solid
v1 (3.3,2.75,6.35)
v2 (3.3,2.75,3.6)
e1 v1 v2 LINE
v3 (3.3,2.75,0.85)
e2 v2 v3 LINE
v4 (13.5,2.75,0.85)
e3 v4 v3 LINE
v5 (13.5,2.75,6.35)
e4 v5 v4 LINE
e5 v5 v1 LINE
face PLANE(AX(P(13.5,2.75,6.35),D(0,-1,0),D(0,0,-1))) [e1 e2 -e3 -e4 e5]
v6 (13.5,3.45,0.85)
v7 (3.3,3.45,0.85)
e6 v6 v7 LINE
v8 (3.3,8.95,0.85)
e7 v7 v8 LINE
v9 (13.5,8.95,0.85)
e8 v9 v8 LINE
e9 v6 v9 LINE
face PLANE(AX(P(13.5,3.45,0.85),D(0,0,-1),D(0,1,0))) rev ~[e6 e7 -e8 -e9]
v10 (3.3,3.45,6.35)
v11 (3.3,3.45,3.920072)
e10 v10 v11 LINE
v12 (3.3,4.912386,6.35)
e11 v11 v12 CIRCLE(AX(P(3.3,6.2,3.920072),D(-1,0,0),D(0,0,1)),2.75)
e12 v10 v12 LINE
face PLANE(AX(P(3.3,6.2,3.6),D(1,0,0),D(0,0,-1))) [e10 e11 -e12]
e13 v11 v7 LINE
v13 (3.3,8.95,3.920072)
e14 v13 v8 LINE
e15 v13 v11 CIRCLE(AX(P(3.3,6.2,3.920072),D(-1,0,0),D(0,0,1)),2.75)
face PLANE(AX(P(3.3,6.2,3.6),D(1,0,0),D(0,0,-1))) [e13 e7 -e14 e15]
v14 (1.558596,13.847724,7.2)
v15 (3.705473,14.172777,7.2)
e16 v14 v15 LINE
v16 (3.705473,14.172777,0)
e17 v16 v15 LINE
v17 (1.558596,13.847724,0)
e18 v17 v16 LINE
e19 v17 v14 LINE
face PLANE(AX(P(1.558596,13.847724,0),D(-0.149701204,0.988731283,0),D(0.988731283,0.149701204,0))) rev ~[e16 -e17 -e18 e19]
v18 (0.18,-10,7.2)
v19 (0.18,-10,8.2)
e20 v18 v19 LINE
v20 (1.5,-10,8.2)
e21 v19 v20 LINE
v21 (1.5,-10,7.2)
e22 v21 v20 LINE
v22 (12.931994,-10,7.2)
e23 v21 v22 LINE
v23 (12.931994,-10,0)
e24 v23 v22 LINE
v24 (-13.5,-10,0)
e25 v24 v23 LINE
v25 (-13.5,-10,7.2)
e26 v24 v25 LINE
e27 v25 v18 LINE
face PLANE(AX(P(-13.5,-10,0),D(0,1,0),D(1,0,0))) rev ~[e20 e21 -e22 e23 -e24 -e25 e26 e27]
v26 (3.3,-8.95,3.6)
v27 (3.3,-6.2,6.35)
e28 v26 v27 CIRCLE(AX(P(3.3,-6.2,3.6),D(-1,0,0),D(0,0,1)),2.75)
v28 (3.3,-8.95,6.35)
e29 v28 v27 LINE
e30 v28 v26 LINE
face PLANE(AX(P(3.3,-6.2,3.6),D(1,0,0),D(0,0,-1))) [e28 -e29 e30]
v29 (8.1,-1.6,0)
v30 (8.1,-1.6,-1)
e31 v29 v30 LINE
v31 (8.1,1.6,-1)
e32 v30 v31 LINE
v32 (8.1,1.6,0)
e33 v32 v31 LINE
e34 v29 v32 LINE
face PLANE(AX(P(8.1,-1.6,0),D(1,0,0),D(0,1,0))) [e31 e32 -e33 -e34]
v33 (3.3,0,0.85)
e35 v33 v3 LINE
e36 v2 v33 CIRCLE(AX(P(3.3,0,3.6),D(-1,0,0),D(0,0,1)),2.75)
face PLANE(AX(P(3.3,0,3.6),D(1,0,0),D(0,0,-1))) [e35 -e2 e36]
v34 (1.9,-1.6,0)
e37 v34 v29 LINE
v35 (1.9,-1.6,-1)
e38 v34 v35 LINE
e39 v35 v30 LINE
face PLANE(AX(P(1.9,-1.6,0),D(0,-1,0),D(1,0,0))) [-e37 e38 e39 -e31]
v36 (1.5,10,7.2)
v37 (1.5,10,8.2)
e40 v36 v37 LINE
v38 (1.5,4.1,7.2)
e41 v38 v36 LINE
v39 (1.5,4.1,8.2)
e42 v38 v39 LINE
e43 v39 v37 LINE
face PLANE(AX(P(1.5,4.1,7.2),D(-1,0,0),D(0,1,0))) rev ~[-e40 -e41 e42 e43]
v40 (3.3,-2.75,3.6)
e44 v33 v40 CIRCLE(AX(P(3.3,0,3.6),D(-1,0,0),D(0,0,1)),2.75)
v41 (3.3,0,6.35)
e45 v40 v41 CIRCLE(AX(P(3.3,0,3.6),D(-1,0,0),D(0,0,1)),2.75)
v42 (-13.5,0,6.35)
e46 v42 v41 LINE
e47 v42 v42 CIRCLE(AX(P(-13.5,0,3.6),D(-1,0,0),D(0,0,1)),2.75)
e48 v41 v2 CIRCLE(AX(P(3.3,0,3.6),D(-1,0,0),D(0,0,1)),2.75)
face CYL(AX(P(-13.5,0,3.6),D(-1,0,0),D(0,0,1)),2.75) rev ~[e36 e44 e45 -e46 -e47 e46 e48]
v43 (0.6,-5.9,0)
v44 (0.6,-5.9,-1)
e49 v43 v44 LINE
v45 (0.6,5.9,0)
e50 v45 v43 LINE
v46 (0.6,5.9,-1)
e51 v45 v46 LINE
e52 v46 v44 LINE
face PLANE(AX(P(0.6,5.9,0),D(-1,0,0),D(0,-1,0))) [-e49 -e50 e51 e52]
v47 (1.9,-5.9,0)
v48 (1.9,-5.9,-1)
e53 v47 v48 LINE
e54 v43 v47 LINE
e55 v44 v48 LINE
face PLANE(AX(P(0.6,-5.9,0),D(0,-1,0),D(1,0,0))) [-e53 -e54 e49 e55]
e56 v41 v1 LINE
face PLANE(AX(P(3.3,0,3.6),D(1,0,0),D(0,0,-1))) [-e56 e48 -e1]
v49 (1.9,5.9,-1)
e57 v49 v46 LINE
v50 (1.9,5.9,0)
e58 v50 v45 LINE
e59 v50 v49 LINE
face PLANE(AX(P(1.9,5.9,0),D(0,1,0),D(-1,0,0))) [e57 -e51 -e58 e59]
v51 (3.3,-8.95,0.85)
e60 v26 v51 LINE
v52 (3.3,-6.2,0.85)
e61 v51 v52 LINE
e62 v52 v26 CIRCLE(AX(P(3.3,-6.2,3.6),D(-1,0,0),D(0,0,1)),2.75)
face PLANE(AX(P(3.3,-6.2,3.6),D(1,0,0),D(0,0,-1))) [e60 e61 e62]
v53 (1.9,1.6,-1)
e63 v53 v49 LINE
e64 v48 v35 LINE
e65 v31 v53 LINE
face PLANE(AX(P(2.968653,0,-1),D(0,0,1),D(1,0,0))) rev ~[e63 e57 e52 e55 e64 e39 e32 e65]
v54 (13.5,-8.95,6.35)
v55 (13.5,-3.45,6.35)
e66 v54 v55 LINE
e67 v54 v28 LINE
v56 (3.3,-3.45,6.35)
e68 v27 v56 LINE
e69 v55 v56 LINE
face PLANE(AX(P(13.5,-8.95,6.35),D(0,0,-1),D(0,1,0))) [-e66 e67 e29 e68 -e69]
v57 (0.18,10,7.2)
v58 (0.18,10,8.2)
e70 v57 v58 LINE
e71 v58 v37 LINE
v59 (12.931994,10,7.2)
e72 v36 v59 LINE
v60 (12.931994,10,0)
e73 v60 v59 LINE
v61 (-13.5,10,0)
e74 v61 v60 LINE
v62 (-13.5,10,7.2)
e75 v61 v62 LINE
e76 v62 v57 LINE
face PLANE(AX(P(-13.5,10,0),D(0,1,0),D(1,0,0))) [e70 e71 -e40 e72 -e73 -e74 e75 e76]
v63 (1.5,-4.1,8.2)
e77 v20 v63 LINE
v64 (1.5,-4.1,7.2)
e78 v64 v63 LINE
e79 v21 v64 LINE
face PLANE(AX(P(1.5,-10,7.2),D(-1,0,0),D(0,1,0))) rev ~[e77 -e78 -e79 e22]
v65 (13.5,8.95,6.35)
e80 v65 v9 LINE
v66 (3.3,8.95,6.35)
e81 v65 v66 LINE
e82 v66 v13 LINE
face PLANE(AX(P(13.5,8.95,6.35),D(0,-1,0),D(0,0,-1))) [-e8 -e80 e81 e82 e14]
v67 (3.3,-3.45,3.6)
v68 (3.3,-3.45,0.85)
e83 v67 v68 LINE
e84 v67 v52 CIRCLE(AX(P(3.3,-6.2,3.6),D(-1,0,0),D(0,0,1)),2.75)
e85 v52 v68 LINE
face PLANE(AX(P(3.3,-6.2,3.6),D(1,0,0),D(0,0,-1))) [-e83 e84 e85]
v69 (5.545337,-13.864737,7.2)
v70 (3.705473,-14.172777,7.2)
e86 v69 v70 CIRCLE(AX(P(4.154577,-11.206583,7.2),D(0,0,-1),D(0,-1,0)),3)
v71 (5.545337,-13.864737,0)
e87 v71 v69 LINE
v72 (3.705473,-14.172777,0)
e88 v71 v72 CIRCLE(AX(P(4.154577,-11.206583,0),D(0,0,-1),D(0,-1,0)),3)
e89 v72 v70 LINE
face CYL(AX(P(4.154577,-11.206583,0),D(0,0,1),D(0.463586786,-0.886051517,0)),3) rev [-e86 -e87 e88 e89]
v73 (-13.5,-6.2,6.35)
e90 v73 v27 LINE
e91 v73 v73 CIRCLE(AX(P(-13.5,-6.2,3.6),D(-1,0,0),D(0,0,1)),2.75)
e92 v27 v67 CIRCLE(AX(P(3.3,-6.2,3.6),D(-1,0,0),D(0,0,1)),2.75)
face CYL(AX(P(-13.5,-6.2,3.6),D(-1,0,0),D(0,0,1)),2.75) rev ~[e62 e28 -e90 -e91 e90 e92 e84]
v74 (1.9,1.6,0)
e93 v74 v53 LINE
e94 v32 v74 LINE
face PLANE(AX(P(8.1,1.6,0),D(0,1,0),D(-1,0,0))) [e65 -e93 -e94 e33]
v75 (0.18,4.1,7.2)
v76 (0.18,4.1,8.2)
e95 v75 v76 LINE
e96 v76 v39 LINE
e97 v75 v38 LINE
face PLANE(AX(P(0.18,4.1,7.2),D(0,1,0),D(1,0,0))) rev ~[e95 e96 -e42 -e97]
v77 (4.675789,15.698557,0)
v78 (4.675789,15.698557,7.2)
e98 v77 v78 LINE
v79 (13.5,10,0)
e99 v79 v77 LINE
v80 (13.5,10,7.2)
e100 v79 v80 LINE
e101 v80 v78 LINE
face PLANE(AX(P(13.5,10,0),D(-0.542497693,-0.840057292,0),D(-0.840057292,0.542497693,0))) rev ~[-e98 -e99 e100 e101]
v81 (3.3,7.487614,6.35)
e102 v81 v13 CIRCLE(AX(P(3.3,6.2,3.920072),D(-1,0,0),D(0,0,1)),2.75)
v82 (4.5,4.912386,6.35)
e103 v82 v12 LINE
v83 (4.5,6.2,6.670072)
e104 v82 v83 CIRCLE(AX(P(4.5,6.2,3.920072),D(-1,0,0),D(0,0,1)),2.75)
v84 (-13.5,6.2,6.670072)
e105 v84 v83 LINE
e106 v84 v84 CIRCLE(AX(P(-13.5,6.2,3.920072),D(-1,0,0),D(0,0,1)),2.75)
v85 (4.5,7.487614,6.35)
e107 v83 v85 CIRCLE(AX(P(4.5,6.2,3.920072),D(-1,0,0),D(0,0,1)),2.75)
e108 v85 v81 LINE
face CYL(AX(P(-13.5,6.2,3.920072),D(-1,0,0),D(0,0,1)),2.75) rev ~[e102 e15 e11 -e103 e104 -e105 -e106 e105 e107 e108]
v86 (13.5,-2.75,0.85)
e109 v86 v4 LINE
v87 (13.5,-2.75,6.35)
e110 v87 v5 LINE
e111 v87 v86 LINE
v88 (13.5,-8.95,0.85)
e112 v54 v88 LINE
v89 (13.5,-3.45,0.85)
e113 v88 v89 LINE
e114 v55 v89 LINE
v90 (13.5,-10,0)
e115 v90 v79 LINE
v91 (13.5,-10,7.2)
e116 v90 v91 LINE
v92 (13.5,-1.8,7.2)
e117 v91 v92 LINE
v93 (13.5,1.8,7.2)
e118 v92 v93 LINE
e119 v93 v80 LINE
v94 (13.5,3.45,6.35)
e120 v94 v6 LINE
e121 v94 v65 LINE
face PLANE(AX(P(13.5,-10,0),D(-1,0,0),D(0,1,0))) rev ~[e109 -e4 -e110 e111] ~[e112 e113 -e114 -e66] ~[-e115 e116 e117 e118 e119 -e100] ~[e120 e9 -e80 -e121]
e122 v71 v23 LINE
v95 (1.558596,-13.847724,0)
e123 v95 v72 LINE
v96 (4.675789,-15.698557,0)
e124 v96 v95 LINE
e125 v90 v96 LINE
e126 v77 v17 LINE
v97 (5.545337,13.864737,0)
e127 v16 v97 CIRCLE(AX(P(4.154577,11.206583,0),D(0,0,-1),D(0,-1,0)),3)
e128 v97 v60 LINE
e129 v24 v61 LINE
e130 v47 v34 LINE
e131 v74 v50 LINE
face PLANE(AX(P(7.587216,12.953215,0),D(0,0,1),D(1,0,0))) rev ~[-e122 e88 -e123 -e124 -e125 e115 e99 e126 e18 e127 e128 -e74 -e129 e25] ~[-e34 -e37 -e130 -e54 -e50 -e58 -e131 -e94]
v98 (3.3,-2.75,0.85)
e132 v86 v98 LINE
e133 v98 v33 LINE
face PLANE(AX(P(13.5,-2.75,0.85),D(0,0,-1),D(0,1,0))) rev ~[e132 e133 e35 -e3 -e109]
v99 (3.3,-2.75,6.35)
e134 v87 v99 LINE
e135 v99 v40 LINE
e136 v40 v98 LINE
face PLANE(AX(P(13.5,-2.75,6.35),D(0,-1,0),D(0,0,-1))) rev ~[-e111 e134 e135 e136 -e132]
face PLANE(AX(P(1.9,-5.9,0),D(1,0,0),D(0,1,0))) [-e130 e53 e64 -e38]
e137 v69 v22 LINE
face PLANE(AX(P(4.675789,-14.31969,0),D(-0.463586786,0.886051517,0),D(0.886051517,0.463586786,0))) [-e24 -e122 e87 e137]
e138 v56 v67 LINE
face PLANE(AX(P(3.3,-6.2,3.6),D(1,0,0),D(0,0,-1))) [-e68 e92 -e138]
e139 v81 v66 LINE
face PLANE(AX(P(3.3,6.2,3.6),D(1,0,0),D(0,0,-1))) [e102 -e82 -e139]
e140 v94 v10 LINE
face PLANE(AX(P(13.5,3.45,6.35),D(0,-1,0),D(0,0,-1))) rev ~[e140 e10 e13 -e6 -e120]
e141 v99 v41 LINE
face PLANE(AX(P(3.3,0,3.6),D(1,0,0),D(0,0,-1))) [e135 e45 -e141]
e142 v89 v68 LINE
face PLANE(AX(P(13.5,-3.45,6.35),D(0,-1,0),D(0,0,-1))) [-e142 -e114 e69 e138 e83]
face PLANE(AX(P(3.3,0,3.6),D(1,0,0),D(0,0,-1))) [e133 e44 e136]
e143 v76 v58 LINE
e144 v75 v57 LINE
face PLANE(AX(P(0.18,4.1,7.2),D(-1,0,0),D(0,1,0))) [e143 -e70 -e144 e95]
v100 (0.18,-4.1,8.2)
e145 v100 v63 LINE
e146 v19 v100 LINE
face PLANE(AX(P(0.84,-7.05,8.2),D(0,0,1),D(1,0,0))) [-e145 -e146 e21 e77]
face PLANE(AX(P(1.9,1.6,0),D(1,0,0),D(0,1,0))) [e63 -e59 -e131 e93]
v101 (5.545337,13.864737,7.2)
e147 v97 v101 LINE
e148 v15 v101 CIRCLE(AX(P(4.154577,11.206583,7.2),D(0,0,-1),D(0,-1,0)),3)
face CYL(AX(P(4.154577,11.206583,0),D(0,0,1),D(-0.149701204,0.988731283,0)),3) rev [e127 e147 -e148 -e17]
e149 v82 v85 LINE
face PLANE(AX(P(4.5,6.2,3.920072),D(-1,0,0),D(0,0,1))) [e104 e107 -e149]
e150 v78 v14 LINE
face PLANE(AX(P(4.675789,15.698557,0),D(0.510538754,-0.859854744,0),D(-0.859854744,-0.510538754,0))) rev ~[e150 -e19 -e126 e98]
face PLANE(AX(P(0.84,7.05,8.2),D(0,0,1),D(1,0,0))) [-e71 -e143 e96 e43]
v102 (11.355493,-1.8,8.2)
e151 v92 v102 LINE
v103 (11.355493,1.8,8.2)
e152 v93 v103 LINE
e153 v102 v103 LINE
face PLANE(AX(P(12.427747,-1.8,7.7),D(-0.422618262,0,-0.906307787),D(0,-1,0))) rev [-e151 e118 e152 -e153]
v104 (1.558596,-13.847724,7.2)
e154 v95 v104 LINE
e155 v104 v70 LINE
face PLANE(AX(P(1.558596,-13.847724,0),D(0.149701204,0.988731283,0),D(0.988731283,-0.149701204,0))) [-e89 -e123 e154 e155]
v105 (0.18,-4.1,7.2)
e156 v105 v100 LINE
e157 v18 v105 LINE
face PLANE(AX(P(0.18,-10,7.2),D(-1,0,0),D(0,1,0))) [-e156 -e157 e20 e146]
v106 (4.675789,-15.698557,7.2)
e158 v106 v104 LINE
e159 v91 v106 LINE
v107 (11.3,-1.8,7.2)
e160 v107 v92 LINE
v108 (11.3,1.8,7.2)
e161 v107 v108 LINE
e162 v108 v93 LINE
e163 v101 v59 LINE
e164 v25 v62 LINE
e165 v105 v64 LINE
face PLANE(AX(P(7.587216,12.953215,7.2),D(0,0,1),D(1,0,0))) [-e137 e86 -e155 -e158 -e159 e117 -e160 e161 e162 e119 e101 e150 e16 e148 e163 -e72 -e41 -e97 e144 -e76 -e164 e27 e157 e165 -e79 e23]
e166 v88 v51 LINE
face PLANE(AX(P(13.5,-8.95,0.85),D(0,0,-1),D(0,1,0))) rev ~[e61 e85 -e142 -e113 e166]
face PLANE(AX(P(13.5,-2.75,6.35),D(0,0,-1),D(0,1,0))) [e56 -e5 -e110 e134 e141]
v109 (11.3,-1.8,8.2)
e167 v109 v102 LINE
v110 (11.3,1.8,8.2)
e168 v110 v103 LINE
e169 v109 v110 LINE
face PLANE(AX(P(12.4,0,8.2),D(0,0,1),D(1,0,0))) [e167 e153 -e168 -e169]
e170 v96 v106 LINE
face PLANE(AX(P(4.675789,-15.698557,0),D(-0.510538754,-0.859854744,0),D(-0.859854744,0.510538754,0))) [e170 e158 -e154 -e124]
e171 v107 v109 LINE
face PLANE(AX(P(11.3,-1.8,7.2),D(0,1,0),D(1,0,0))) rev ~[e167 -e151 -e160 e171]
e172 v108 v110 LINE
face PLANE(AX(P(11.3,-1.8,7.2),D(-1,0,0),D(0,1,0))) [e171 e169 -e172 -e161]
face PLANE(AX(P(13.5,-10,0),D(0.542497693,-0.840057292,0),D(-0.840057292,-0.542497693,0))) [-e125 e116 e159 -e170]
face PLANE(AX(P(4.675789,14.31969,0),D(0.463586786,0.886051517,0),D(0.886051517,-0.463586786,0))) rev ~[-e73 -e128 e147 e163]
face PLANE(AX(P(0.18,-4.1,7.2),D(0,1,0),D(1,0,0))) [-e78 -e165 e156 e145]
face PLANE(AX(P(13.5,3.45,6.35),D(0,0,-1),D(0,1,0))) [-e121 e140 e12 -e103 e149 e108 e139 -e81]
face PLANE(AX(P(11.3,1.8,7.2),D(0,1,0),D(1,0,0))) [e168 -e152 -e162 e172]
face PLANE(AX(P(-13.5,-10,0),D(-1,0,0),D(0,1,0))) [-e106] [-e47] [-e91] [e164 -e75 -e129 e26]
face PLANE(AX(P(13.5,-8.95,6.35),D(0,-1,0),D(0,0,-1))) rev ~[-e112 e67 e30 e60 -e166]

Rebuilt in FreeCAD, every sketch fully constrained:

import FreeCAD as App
import Part
import Sketcher


def edges_at(feature, points):
    """Names of the edges that pass closest to the given points."""
    edges = feature.Shape.Edges
    near = lambda p: min(range(len(edges)), key=lambda i: edges[i].distToShape(Part.Vertex(*p))[0])
    return sorted({f"Edge{near(p) + 1}" for p in points})


def add_polygon(sketch, points):
    """Adds a closed chain of lines whose ends are joined by coincident constraints."""
    first, n = sketch.GeometryCount, len(points)
    for a, b in zip(points, points[1:] + points[:1]):
        sketch.addGeometry(Part.LineSegment(App.Vector(*a, 0), App.Vector(*b, 0)), False)
    for i in range(n):
        sketch.addConstraint(Sketcher.Constraint("Coincident", first + i, 2, first + (i + 1) % n, 1))

doc = App.newDocument("Part")
body = doc.addObject("PartDesign::Body", "Body")

sketch1 = body.newObject("Sketcher::SketchObject", "Sketch")
sketch1.AttachmentSupport = (doc.getObject("XY_Plane"), [""])
sketch1.MapMode = "FlatFace"
add_polygon(sketch1, [(-13.5, 10), (-13.5, -10), (13.5, -10), (13.5, 10)])
sketch1.addConstraint(Sketcher.Constraint("Vertical", 0))
sketch1.addConstraint(Sketcher.Constraint("Horizontal", 1))
sketch1.addConstraint(Sketcher.Constraint("Vertical", 2))
sketch1.addConstraint(Sketcher.Constraint("Horizontal", 3))
sketch1.addConstraint(Sketcher.Constraint("Symmetric", 0, 2, 2, 2, -1, 1))
sketch1.addConstraint(Sketcher.Constraint("DistanceX", 1, 1, 1, 2, 27.0))
sketch1.addConstraint(Sketcher.Constraint("DistanceY", 0, 2, 0, 1, 20.0))
pad1 = body.newObject("PartDesign::Pad", "Pad")
pad1.Profile = sketch1
pad1.Length = 7.2

sketch2 = body.newObject("Sketcher::SketchObject", "Sketch001")
sketch2.AttachmentSupport = (doc.getObject("YZ_Plane"), [""])
sketch2.MapMode = "FlatFace"
sketch2.AttachmentOffset = App.Placement(App.Vector(0, 0, 13.5), App.Rotation())
add_polygon(sketch2, [(-3.45, 6.35), (-8.95, 6.35), (-8.95, 0.85), (-3.45, 0.85)])
add_polygon(sketch2, [(2.75, 6.35), (-2.75, 6.35), (-2.75, 0.85), (2.75, 0.85)])
add_polygon(sketch2, [(8.95, 6.35), (3.45, 6.35), (3.45, 0.85), (8.95, 0.85)])
sketch2.addConstraint(Sketcher.Constraint("Horizontal", 0))
sketch2.addConstraint(Sketcher.Constraint("Vertical", 1))
sketch2.addConstraint(Sketcher.Constraint("Horizontal", 2))
sketch2.addConstraint(Sketcher.Constraint("Vertical", 3))
sketch2.addConstraint(Sketcher.Constraint("Horizontal", 4))
sketch2.addConstraint(Sketcher.Constraint("Vertical", 5))
sketch2.addConstraint(Sketcher.Constraint("Horizontal", 6))
sketch2.addConstraint(Sketcher.Constraint("Vertical", 7))
sketch2.addConstraint(Sketcher.Constraint("Horizontal", 8))
sketch2.addConstraint(Sketcher.Constraint("Vertical", 9))
sketch2.addConstraint(Sketcher.Constraint("Horizontal", 10))
sketch2.addConstraint(Sketcher.Constraint("Vertical", 11))
sketch2.addConstraint(Sketcher.Constraint("Symmetric", 3, 2, 8, 2, -2))
sketch2.addConstraint(Sketcher.Constraint("Symmetric", 1, 2, 10, 2, -2))
sketch2.addConstraint(Sketcher.Constraint("Horizontal", 3, 2, 4, 2))
sketch2.addConstraint(Sketcher.Constraint("Horizontal", 2, 2, 5, 2))
sketch2.addConstraint(Sketcher.Constraint("Equal", 2, 4))
sketch2.addConstraint(Sketcher.Constraint("Equal", 10, 1))
sketch2.addConstraint(Sketcher.Constraint("DistanceX", 0, 2, 0, 1, 5.5))
sketch2.addConstraint(Sketcher.Constraint("DistanceX", 3, 2, 4, 2, 0.7))
sketch2.addConstraint(Sketcher.Constraint("DistanceX", 7, 2, 8, 2, 0.7))
sketch2.addConstraint(Sketcher.Constraint("DistanceY", -1, 1, 0, 2, 6.35))
pocket1 = body.newObject("PartDesign::Pocket", "Pocket")
pocket1.Profile = sketch2
pocket1.Length = 10.2

sketch3 = body.newObject("Sketcher::SketchObject", "Sketch002")
sketch3.AttachmentSupport = (doc.getObject("YZ_Plane"), [""])
sketch3.MapMode = "FlatFace"
sketch3.AttachmentOffset = App.Placement(App.Vector(0, 0, -13.5), App.Rotation())
sketch3.addGeometry(Part.Circle(App.Vector(0, 3.6, 0), App.Vector(0, 0, 1), 2.75), False)
sketch3.addGeometry(Part.Circle(App.Vector(6.2, 3.920072, 0), App.Vector(0, 0, 1), 2.75), False)
sketch3.addGeometry(Part.Circle(App.Vector(-6.2, 3.6, 0), App.Vector(0, 0, 1), 2.75), False)
sketch3.addConstraint(Sketcher.Constraint("Equal", 0, 1))
sketch3.addConstraint(Sketcher.Constraint("Equal", 1, 2))
sketch3.addConstraint(Sketcher.Constraint("PointOnObject", 0, 3, -2))
sketch3.addConstraint(Sketcher.Constraint("Horizontal", 0, 3, 2, 3))
sketch3.addConstraint(Sketcher.Constraint("Diameter", 0, 5.5))
sketch3.addConstraint(Sketcher.Constraint("DistanceY", -1, 1, 0, 3, 3.6))
sketch3.addConstraint(Sketcher.Constraint("DistanceX", -1, 1, 1, 3, 6.2))
sketch3.addConstraint(Sketcher.Constraint("DistanceX", 2, 3, -1, 1, 6.2))
sketch3.addConstraint(Sketcher.Constraint("DistanceY", -1, 1, 1, 3, 3.920072))
pocket2 = body.newObject("PartDesign::Pocket", "Pocket001")
pocket2.Profile = sketch3
pocket2.Length = 18
pocket2.Reversed = True

sketch4 = body.newObject("Sketcher::SketchObject", "Sketch003")
sketch4.AttachmentSupport = (doc.getObject("XY_Plane"), [""])
sketch4.MapMode = "FlatFace"
sketch4.AttachmentOffset = App.Placement(App.Vector(0, 0, 7.2), App.Rotation())
add_polygon(sketch4, [(0.18, 10), (0.18, 4.1), (1.5, 4.1), (1.5, 10)])
add_polygon(sketch4, [(0.18, -4.1), (0.18, -10), (1.5, -10), (1.5, -4.1)])
add_polygon(sketch4, [(11.3, 1.8), (11.3, -1.8), (13.5, -1.8), (13.5, 1.8)])
sketch4.addConstraint(Sketcher.Constraint("Vertical", 0))
sketch4.addConstraint(Sketcher.Constraint("Horizontal", 1))
sketch4.addConstraint(Sketcher.Constraint("Vertical", 2))
sketch4.addConstraint(Sketcher.Constraint("Horizontal", 3))
sketch4.addConstraint(Sketcher.Constraint("Vertical", 4))
sketch4.addConstraint(Sketcher.Constraint("Horizontal", 5))
sketch4.addConstraint(Sketcher.Constraint("Vertical", 6))
sketch4.addConstraint(Sketcher.Constraint("Horizontal", 7))
sketch4.addConstraint(Sketcher.Constraint("Vertical", 8))
sketch4.addConstraint(Sketcher.Constraint("Horizontal", 9))
sketch4.addConstraint(Sketcher.Constraint("Vertical", 10))
sketch4.addConstraint(Sketcher.Constraint("Horizontal", 11))
sketch4.addConstraint(Sketcher.Constraint("Symmetric", 3, 2, 4, 2, -1))
sketch4.addConstraint(Sketcher.Constraint("Symmetric", 1, 2, 6, 2, -1))
sketch4.addConstraint(Sketcher.Constraint("DistanceX", 9, 1, 9, 2, 2.2))
sketch4.addConstraint(Sketcher.Constraint("DistanceY", 0, 2, 0, 1, 5.9))
sketch4.addConstraint(Sketcher.Constraint("DistanceY", 8, 2, 8, 1, 3.6))
sketch4.addConstraint(Sketcher.Constraint("DistanceY", -1, 1, 2, 2, 10.0))
sketch4.addConstraint(Sketcher.Constraint("DistanceX", 6, 2, 9, 2, 12.0))
sketch4.addConstraint(Sketcher.Constraint("DistanceX", 1, 1, 1, 2, 1.32))
sketch4.addConstraint(Sketcher.Constraint("DistanceX", -1, 1, 1, 2, 1.5))
sketch4.addConstraint(Sketcher.Constraint("DistanceY", 8, 2, -1, 1, 1.8))
pad2 = body.newObject("PartDesign::Pad", "Pad001")
pad2.Profile = sketch4
pad2.Length = 1
doc.recompute()

chamfer = body.newObject("PartDesign::Chamfer", "Chamfer")
chamfer.Base = (pad2, edges_at(pad2, [(13.5, 0, 8.2)]))
chamfer.ChamferType = "Two distances"
chamfer.Size = 1
chamfer.Size2 = 2.144507
chamfer.FlipDirection = True

sketch5 = body.newObject("Sketcher::SketchObject", "Sketch004")
sketch5.AttachmentSupport = (doc.getObject("XY_Plane"), [""])
sketch5.MapMode = "FlatFace"
add_polygon(sketch5, [(8.1, 1.6), (8.1, -1.6), (1.9, -1.6), (1.9, -5.9), (0.6, -5.9), (0.6, 5.9), (1.9, 5.9), (1.9, 1.6)])
sketch5.addConstraint(Sketcher.Constraint("Vertical", 0))
sketch5.addConstraint(Sketcher.Constraint("Horizontal", 1))
sketch5.addConstraint(Sketcher.Constraint("Vertical", 2))
sketch5.addConstraint(Sketcher.Constraint("Horizontal", 3))
sketch5.addConstraint(Sketcher.Constraint("Vertical", 4))
sketch5.addConstraint(Sketcher.Constraint("Horizontal", 5))
sketch5.addConstraint(Sketcher.Constraint("Vertical", 6))
sketch5.addConstraint(Sketcher.Constraint("Horizontal", 7))
sketch5.addConstraint(Sketcher.Constraint("Symmetric", 2, 2, 5, 2, -1))
sketch5.addConstraint(Sketcher.Constraint("Equal", 2, 6))
sketch5.addConstraint(Sketcher.Constraint("DistanceX", 1, 2, 1, 1, 6.2))
sketch5.addConstraint(Sketcher.Constraint("DistanceX", 3, 2, 3, 1, 1.3))
sketch5.addConstraint(Sketcher.Constraint("DistanceY", 0, 2, 0, 1, 3.2))
sketch5.addConstraint(Sketcher.Constraint("DistanceY", 2, 2, 2, 1, 4.3))
sketch5.addConstraint(Sketcher.Constraint("DistanceX", -1, 1, 0, 2, 8.1))
pad3 = body.newObject("PartDesign::Pad", "Pad002")
pad3.Profile = sketch5
pad3.Length = 1
pad3.Reversed = True

sketch6 = body.newObject("Sketcher::SketchObject", "Sketch005")
sketch6.AttachmentSupport = (doc.getObject("XY_Plane"), [""])
sketch6.MapMode = "FlatFace"
add_polygon(sketch6, [(4.675789, 15.698557), (13.5, 10), (12.931994, 10), (4.675789, 14.31969), (1.558596, 13.847724)])
add_polygon(sketch6, [(12.931994, -10), (13.5, -10), (4.675789, -15.698557), (1.558596, -13.847724), (4.675789, -14.31969)])
sketch6.addConstraint(Sketcher.Constraint("Horizontal", 1))
sketch6.addConstraint(Sketcher.Constraint("Horizontal", 5))
sketch6.addConstraint(Sketcher.Constraint("Symmetric", 0, 2, 5, 2, -1))
sketch6.addConstraint(Sketcher.Constraint("Symmetric", 4, 2, 6, 2, -1))
sketch6.addConstraint(Sketcher.Constraint("Symmetric", 3, 2, 7, 2, -1))
sketch6.addConstraint(Sketcher.Constraint("Symmetric", 2, 2, 8, 2, -1))
sketch6.addConstraint(Sketcher.Constraint("Vertical", 2, 2, 4, 2))
sketch6.addConstraint(Sketcher.Constraint("Vertical", 1, 2, 9, 2))
sketch6.addConstraint(Sketcher.Constraint("DistanceY", -1, 1, 0, 2, 10.0))
sketch6.addConstraint(Sketcher.Constraint("DistanceX", -1, 1, 0, 2, 13.5))
sketch6.addConstraint(Sketcher.Constraint("Distance", 3, 3.15272))
sketch6.addConstraint(Sketcher.Constraint("DistanceX", 1, 2, 1, 1, 0.568006))
sketch6.addConstraint(Sketcher.Constraint("DistanceX", -1, 1, 2, 2, 4.675789))
sketch6.addConstraint(Sketcher.Constraint("DistanceY", -1, 1, 2, 2, 14.31969))
sketch6.addConstraint(Sketcher.Constraint("DistanceY", 6, 2, 3, 2, 29.54628))
sketch6.addConstraint(Sketcher.Constraint("Distance", 0, 10.504297))
pad4 = body.newObject("PartDesign::Pad", "Pad003")
pad4.Profile = sketch6
pad4.Length = 7.2
doc.recompute()

fillet = body.newObject("PartDesign::Fillet", "Fillet")
fillet.Base = (pad4, edges_at(pad4, [(4.676, 14.32, 3.6)]))
fillet.Radius = 3
doc.recompute()

fillet2 = body.newObject("PartDesign::Fillet", "Fillet001")
fillet2.Base = (fillet, edges_at(fillet, [(4.676, -14.32, 3.6)]))
fillet2.Radius = 3

doc.recompute()
